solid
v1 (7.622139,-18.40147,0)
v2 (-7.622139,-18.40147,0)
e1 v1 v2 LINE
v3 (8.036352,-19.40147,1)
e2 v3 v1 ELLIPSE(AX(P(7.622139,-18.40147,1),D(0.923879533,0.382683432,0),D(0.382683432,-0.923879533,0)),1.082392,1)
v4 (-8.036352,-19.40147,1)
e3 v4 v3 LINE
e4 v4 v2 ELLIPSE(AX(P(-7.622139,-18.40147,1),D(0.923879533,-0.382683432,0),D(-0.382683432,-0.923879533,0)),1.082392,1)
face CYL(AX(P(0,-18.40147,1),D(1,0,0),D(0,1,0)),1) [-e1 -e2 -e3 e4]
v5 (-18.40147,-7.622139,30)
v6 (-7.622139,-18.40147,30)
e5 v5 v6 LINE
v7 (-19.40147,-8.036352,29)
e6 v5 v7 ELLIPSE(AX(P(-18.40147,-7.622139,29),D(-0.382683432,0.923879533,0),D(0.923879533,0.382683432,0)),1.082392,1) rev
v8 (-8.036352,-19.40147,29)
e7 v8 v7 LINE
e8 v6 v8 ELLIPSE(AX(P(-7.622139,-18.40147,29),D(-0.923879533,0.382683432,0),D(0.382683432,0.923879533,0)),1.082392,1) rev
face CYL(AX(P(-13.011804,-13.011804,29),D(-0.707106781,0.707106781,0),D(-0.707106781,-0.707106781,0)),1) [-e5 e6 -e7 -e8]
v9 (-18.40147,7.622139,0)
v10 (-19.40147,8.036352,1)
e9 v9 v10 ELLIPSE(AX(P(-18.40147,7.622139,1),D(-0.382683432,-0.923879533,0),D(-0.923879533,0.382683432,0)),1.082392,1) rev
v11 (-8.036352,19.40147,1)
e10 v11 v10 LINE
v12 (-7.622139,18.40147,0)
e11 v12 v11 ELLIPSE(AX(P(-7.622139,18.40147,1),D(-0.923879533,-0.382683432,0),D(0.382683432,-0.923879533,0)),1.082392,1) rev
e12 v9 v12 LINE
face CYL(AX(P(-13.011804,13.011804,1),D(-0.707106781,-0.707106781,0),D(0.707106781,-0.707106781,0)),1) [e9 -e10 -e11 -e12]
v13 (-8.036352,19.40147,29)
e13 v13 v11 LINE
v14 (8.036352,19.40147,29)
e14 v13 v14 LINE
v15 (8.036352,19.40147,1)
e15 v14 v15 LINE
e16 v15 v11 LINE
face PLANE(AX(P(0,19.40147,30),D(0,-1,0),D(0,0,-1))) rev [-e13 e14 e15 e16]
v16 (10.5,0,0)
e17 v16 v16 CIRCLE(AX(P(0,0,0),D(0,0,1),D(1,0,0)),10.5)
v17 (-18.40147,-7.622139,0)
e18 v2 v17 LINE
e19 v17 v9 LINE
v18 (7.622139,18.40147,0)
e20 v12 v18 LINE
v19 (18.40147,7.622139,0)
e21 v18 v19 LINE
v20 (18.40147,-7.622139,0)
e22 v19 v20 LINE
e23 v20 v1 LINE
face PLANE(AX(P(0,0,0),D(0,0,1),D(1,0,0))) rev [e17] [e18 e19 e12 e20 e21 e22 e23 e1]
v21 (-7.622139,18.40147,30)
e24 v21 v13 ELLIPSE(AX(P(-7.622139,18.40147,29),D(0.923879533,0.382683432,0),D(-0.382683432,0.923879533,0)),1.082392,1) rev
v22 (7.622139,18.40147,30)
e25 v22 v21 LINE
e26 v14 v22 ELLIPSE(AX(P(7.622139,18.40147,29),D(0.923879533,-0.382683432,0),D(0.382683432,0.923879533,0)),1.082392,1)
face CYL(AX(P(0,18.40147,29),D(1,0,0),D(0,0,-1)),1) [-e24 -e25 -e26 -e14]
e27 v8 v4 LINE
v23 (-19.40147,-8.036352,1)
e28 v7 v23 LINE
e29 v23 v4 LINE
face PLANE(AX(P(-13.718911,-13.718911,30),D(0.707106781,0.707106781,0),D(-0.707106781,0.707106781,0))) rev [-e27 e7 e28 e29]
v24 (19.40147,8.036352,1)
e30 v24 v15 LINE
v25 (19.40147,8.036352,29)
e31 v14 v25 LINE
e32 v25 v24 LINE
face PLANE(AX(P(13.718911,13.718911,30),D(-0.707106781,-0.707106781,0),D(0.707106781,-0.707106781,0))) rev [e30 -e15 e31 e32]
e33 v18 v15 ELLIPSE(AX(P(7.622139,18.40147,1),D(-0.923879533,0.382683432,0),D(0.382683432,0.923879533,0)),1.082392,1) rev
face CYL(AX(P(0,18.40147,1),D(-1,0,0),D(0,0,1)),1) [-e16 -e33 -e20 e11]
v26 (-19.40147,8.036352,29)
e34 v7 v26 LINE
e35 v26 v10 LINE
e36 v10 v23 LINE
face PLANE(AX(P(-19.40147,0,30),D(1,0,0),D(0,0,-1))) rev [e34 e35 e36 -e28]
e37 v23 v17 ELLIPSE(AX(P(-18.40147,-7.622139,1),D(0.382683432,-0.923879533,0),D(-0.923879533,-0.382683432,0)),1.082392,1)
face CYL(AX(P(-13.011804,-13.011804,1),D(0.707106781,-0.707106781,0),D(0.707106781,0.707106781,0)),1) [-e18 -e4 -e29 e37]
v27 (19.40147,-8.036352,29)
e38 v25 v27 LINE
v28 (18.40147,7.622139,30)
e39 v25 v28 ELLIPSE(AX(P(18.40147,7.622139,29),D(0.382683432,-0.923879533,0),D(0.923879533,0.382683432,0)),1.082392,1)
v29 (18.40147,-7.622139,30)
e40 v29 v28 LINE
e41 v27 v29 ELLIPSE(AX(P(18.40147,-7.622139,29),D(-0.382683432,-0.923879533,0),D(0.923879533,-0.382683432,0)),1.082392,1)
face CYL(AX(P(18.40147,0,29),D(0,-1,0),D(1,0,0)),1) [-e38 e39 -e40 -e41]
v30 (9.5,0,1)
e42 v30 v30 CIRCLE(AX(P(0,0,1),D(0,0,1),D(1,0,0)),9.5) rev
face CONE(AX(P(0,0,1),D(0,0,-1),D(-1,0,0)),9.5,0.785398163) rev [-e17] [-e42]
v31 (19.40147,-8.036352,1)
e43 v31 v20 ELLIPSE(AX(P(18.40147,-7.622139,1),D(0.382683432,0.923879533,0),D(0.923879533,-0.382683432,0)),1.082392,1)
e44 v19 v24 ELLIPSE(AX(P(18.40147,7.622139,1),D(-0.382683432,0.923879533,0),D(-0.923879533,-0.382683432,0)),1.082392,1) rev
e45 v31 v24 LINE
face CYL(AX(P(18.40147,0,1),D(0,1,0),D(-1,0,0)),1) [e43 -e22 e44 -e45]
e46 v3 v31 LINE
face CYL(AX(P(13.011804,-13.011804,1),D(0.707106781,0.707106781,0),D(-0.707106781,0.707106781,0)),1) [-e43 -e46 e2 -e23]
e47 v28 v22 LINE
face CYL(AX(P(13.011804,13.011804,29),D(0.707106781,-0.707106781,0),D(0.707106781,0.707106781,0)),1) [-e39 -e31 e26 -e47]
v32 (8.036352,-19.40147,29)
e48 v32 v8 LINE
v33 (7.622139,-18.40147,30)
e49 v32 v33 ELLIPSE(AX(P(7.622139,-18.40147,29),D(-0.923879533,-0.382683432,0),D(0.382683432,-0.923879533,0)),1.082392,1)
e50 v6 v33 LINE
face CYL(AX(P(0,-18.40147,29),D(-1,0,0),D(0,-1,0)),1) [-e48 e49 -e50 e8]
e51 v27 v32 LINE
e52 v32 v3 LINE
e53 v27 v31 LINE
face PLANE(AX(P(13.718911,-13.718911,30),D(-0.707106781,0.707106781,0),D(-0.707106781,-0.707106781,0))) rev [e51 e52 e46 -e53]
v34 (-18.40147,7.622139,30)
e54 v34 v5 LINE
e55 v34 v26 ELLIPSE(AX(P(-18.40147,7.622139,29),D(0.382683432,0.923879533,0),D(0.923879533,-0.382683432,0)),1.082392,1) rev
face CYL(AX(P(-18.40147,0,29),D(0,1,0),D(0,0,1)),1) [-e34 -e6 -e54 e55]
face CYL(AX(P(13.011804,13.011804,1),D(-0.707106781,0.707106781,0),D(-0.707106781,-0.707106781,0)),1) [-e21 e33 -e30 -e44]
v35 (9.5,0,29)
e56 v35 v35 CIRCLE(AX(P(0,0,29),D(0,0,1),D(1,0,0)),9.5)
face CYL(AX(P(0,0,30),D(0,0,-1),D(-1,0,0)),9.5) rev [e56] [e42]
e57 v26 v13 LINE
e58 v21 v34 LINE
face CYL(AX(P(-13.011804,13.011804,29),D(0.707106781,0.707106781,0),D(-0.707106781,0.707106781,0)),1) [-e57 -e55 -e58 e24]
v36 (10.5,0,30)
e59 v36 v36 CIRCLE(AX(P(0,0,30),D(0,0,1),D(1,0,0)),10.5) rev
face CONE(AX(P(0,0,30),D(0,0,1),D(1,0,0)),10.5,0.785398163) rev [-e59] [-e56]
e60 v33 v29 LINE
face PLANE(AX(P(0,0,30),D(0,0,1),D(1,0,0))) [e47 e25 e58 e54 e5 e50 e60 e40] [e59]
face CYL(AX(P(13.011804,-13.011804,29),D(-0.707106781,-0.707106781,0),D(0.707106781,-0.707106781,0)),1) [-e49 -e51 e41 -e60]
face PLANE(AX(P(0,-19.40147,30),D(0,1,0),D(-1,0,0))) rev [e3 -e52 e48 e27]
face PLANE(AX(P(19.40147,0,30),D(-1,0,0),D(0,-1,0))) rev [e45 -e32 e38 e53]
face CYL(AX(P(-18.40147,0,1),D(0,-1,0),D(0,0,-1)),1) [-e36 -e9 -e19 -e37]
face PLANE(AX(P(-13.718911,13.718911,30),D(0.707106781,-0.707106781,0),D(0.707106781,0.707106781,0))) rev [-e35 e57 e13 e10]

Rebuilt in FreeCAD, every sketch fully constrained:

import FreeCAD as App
import Part
import Sketcher

V = App.Vector
Q = App.Units.Quantity


def edges_at(feature, points):
    """Names of the edges that pass closest to the given points."""
    edges = feature.Shape.Edges
    near = lambda p: min(range(len(edges)), key=lambda i: edges[i].distToShape(Part.Vertex(*p))[0])
    return sorted({f"Edge{near(p) + 1}" for p in points})

doc = App.newDocument("Part")
body = doc.addObject("PartDesign::Body", "Body")

# Sketch on XY plane
sketch1 = body.newObject("Sketcher::SketchObject", "Sketch")
sketch1.AttachmentSupport = (doc.getObject("XY_Plane"), [""])
sketch1.MapMode = "FlatFace"
sketch1.addGeometry([
    Part.LineSegment(V(8.036352, 19.40147, 0), V(-8.036352, 19.40147, 0)),  # 0
    Part.LineSegment(V(-8.036352, 19.40147, 0), V(-19.40147, 8.036352, 0)),  # 1
    Part.LineSegment(V(-19.40147, 8.036352, 0), V(-19.40147, -8.036352, 0)),  # 2
    Part.LineSegment(V(-19.40147, -8.036352, 0), V(-8.036352, -19.40147, 0)),  # 3
    Part.LineSegment(V(-8.036352, -19.40147, 0), V(8.036352, -19.40147, 0)),  # 4
    Part.LineSegment(V(8.036352, -19.40147, 0), V(19.40147, -8.036352, 0)),  # 5
    Part.LineSegment(V(19.40147, -8.036352, 0), V(19.40147, 8.036352, 0)),  # 6
    Part.LineSegment(V(19.40147, 8.036352, 0), V(8.036352, 19.40147, 0)),  # 7
], False)
sketch1.addConstraint([
    Sketcher.Constraint("Coincident", 0, 2, 1, 1),
    Sketcher.Constraint("Coincident", 1, 2, 2, 1),
    Sketcher.Constraint("Coincident", 2, 2, 3, 1),
    Sketcher.Constraint("Coincident", 3, 2, 4, 1),
    Sketcher.Constraint("Coincident", 4, 2, 5, 1),
    Sketcher.Constraint("Coincident", 5, 2, 6, 1),
    Sketcher.Constraint("Coincident", 6, 2, 7, 1),
    Sketcher.Constraint("Coincident", 7, 2, 0, 1),
    Sketcher.Constraint("Horizontal", 0),
    Sketcher.Constraint("Vertical", 2),
    Sketcher.Constraint("Horizontal", 4),
    Sketcher.Constraint("Vertical", 6),
    Sketcher.Constraint("Symmetric", 0, 2, 4, 2, -1, 1),
    Sketcher.Constraint("Symmetric", 1, 2, 5, 2, -1, 1),
    Sketcher.Constraint("Perpendicular", 1, 3),
    Sketcher.Constraint("Perpendicular", 5, 7),
    Sketcher.Constraint("Horizontal", 2, 2, 5, 2),
    Sketcher.Constraint("Horizontal", 1, 2, 6, 2),
    Sketcher.Constraint("Vertical", 0, 2, 3, 2),
    Sketcher.Constraint("Equal", 4, 2),
    Sketcher.Constraint("DistanceX", 0, 2, 0, 1, Q("16.072704 mm")),
    Sketcher.Constraint("DistanceY", -1, 1, 0, 2, Q("19.40147 mm")),
])
pad1 = body.newObject("PartDesign::Pad", "Pad")
pad1.Profile = sketch1
pad1.Length = 30

# Sketch on XY plane
sketch2 = body.newObject("Sketcher::SketchObject", "Sketch001")
sketch2.AttachmentSupport = (doc.getObject("XY_Plane"), [""])
sketch2.MapMode = "FlatFace"
sketch2.addGeometry(Part.Circle(V(0, 0, 0), V(0, 0, 1), 9.5), False)
sketch2.addConstraint([
    Sketcher.Constraint("Coincident", 0, 3, -1, 1),
    Sketcher.Constraint("Diameter", 0, Q("19 mm")),
])
pocket1 = body.newObject("PartDesign::Pocket", "Pocket")
pocket1.Profile = sketch2
pocket1.Type = "ThroughAll"
pocket1.Reversed = True
doc.recompute()

chamfer = body.newObject("PartDesign::Chamfer", "Chamfer")
chamfer.Base = (pocket1, edges_at(pocket1, [(9.5, 0, 30), (9.5, 0, 0)]))
chamfer.Size = 1
doc.recompute()

fillet = body.newObject("PartDesign::Fillet", "Fillet")
fillet.Base = (chamfer, edges_at(chamfer, [
    (19.401, 0, 0),
    (13.719, -13.719, 0),
    (-13.719, 13.719, 30),
    (0, -19.401, 0),
    (-13.719, -13.719, 0),
    (-19.401, 0, 0),
    (-13.719, 13.719, 0),
    (0, 19.401, 0),
    (-19.401, 0, 30),
    (-13.719, -13.719, 30),
    (0, -19.401, 30),
    (13.719, -13.719, 30),
    (19.401, 0, 30),
    (13.719, 13.719, 30),
    (0, 19.401, 30),
    (13.719, 13.719, 0),
]))
fillet.Radius = 1

doc.recompute()
